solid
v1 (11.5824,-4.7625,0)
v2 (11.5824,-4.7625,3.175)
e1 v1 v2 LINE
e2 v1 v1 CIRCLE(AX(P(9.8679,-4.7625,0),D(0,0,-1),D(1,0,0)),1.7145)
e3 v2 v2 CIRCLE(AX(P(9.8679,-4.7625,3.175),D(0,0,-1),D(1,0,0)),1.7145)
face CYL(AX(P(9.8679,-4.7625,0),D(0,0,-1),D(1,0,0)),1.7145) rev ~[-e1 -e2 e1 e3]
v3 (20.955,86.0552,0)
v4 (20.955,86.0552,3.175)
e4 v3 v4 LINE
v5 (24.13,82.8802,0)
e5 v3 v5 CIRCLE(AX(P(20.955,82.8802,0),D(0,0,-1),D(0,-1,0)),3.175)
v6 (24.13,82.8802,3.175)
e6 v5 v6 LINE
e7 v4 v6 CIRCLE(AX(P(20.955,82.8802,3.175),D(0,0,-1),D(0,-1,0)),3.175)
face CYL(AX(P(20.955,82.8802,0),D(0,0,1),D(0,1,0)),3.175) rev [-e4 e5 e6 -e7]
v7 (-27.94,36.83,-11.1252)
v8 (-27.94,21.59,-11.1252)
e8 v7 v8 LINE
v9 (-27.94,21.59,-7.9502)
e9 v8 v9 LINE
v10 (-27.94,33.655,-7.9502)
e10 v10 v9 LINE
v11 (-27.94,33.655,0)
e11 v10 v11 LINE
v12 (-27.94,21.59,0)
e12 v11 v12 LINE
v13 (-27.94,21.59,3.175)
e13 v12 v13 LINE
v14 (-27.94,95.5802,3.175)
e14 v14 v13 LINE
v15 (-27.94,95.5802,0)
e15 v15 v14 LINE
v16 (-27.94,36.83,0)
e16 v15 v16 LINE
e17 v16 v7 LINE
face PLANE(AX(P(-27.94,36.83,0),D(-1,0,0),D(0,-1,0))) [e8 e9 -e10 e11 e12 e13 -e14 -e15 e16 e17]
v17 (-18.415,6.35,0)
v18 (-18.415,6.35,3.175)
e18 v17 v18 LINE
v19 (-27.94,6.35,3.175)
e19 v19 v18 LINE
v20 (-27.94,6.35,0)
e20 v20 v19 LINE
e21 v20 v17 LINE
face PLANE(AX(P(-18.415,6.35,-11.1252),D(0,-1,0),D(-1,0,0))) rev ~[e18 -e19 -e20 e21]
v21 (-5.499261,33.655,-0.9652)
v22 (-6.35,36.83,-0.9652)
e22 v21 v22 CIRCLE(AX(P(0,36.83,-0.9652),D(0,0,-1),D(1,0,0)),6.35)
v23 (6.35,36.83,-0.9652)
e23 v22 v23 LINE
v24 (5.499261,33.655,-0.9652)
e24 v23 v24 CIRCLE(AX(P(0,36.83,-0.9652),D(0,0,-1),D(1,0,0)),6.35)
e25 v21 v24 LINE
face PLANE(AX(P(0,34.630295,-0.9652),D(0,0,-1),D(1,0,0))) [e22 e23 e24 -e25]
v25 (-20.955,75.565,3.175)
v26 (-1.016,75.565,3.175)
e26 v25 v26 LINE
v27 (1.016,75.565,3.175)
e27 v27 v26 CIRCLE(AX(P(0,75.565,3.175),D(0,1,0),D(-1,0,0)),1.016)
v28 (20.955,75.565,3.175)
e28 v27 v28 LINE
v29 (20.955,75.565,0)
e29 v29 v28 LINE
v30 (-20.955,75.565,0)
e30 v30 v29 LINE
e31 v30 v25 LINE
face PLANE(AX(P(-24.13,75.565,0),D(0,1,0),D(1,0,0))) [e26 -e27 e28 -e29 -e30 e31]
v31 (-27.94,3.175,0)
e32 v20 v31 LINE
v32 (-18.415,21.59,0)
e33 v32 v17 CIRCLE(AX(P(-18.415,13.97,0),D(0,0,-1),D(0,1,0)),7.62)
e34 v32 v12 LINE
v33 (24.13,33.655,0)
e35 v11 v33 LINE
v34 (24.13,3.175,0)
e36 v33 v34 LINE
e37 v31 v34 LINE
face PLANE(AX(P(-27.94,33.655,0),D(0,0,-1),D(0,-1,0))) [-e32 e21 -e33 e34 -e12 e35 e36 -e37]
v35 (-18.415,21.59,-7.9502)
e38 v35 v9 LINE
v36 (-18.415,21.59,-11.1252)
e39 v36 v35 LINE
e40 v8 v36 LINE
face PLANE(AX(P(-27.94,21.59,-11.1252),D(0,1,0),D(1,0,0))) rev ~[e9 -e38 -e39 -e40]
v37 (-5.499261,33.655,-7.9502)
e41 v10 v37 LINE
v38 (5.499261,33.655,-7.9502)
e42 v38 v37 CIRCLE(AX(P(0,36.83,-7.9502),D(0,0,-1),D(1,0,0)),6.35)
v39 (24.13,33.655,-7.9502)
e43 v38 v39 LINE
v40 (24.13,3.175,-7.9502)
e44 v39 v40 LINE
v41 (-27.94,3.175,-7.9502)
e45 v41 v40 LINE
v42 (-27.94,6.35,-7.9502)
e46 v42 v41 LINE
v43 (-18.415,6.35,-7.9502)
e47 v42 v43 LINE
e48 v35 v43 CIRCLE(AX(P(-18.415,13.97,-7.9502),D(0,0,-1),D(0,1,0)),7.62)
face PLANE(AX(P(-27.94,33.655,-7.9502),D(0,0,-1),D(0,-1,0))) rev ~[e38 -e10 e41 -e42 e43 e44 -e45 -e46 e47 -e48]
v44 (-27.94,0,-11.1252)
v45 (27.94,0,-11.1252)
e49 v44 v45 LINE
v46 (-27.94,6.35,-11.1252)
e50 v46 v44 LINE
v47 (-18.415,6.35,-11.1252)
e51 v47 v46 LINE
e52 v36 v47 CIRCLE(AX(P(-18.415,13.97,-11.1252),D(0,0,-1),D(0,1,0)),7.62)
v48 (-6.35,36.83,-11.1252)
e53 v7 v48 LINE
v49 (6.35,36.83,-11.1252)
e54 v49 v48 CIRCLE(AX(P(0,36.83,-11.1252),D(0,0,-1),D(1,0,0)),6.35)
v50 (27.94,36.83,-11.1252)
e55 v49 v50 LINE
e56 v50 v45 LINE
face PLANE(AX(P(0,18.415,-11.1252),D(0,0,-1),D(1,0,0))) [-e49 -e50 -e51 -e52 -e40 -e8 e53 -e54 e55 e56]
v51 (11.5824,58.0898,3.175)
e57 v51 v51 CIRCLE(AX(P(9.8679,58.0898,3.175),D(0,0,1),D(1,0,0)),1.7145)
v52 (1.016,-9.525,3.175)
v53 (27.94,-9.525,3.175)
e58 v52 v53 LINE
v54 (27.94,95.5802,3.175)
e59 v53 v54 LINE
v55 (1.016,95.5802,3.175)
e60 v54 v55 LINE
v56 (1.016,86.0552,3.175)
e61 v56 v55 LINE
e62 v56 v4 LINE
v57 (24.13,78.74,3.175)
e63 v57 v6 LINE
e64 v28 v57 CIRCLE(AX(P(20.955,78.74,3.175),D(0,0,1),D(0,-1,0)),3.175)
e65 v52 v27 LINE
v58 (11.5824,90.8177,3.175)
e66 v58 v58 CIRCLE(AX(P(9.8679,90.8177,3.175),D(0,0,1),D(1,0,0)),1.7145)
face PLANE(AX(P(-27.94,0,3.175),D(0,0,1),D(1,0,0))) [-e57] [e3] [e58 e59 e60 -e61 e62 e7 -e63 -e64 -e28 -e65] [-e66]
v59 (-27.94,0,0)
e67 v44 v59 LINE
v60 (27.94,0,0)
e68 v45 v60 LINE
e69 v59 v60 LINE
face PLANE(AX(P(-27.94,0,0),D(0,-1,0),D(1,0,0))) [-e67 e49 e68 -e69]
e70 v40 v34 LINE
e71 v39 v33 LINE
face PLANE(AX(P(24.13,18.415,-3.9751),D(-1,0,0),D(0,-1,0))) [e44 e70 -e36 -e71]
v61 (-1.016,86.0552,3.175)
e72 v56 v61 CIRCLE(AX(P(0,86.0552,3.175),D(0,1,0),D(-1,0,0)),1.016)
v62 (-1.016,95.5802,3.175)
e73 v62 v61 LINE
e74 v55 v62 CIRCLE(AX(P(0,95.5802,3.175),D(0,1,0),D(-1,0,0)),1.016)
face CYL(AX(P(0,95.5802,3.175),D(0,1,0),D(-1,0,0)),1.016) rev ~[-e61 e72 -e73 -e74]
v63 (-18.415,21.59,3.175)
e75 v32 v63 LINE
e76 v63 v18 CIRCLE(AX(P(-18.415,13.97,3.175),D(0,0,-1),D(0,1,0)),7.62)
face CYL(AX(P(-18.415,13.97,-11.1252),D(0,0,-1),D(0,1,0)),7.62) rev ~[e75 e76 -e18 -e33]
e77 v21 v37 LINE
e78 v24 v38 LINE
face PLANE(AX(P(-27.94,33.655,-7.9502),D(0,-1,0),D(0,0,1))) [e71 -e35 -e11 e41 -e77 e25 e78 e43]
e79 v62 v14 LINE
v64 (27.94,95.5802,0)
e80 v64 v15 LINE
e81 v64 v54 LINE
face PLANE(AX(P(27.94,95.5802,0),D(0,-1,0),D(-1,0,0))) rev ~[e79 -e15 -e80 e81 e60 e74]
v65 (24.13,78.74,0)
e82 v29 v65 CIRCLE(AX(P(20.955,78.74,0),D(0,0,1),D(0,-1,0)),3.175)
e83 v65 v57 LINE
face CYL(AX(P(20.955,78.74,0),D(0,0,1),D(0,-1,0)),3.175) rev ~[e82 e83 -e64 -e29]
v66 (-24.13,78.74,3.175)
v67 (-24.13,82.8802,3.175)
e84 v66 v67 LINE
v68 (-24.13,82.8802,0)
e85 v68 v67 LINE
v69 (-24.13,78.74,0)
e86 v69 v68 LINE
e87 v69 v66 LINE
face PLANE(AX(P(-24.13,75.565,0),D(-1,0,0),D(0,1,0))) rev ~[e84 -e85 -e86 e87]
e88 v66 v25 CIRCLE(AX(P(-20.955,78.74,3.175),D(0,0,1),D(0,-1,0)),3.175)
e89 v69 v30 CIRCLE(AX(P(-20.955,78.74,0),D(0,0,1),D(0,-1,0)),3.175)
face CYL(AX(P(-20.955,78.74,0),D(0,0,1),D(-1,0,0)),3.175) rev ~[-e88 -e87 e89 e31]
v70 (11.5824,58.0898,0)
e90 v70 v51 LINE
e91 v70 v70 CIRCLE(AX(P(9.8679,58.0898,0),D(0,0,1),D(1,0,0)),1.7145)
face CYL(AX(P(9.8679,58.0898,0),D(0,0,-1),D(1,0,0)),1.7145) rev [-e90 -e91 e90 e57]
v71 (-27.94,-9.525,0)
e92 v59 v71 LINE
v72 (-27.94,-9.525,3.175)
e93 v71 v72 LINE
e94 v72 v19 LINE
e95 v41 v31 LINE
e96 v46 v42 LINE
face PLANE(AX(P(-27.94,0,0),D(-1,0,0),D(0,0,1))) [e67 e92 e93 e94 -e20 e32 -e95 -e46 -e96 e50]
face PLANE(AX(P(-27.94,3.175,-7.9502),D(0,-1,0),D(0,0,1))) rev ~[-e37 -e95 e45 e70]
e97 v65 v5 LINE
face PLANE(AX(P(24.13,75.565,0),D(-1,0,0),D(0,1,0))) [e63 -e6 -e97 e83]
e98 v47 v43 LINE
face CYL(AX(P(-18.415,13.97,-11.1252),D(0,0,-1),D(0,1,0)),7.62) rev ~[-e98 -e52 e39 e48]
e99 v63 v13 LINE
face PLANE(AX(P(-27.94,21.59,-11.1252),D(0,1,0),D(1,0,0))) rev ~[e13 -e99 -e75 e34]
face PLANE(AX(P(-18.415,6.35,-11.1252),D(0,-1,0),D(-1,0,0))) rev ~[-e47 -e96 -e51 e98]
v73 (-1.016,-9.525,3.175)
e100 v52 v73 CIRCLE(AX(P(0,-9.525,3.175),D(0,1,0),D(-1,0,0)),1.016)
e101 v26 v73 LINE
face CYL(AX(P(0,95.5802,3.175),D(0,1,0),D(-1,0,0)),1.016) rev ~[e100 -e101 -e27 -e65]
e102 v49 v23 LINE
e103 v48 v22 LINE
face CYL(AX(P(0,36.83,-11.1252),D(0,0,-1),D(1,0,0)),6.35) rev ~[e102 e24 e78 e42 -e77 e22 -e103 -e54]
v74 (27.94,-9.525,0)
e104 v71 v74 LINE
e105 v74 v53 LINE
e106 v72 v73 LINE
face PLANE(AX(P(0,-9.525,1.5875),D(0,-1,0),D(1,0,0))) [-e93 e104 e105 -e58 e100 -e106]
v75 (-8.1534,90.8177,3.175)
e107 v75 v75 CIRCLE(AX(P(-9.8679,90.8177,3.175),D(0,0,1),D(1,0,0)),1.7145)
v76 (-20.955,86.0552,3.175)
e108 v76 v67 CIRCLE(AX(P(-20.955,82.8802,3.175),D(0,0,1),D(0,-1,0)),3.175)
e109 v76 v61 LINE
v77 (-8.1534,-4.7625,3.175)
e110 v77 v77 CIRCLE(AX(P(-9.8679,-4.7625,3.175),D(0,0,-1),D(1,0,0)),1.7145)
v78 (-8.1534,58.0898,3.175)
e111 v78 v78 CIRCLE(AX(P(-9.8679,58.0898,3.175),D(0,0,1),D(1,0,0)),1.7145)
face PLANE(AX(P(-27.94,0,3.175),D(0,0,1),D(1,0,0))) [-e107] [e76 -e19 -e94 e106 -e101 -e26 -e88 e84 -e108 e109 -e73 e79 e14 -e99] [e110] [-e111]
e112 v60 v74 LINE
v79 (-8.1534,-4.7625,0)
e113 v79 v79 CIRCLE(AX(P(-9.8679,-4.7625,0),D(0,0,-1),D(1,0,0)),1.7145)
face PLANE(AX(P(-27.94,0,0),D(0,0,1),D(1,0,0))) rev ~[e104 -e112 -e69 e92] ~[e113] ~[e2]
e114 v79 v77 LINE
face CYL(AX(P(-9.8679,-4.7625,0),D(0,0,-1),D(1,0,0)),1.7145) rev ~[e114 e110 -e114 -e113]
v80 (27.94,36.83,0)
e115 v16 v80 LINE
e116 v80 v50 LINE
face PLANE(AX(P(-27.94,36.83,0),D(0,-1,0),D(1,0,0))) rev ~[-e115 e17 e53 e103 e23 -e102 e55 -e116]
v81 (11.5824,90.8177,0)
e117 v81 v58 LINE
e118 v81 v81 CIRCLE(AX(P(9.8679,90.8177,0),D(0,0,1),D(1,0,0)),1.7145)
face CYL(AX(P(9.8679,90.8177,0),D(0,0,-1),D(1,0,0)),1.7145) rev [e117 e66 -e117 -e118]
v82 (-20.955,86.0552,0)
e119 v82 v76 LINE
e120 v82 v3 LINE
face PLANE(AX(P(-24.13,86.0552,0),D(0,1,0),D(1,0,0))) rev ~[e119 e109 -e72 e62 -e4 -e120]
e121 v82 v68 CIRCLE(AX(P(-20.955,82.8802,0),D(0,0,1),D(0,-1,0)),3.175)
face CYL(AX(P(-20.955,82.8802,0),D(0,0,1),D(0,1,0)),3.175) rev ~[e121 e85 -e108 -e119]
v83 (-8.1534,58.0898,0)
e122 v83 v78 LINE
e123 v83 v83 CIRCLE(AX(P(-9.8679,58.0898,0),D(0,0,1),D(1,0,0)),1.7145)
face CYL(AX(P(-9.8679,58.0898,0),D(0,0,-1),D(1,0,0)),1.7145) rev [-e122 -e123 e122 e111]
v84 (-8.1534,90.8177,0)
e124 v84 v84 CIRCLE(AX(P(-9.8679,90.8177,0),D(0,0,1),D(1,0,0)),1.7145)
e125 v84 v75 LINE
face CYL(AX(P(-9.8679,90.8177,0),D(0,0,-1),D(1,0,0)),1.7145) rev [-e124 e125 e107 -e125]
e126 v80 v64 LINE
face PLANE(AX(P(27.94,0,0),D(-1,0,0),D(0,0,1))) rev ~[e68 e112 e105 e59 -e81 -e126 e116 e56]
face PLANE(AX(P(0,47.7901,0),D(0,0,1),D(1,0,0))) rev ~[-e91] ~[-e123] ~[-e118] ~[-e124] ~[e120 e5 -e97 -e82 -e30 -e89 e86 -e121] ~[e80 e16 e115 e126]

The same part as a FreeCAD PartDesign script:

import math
import FreeCAD as App
import Part
import Sketcher
Q = App.Units.Quantity


def edges_at(feature, points):
    """Names of the edges that pass closest to the given points."""
    edges = feature.Shape.Edges
    near = lambda p: min(range(len(edges)), key=lambda i: edges[i].distToShape(Part.Vertex(*p))[0])
    return sorted({f"Edge{near(p) + 1}" for p in points})

doc = App.newDocument("Part")
params = doc.addObject("Spreadsheet::Sheet", "Params")
for row, (alias, value) in enumerate([
    ("sketch1_diameter", "0.135 in"),
    ("sketch1_width", "2.2 in"),
    ("sketch1_width2", "1.9 in"),
    ("sketch1_height", "3.763 in"),
    ("sketch1_height2", "0.413 in"),
    ("pad1_length", "0.125 in"),
    ("sketch2_width", "2.2 in"),
    ("sketch2_height", "1.45 in"),
    ("pad2_length", "0.438 in"),
    ("sketch3_radius", "0.3 in"),
    ("sketch3_width", "0.375 in"),
    ("sketch4_width", "2.2 in"),
    ("sketch4_height", "0.125 in"),
    ("pad3_length", "0.375 in"),
    ("sketch5_diameter", "0.08 in"),
    ("sketch6_width", "1.2 in"),
    ("sketch6_height", "0.313 in"),
    ("pocket3_length", "2.05 in"),
    ("fillet_radius", "0.125 in"),
    ("sketch7_diameter", "0.135 in"),
    ("pocket4_length", "1 in"),
    ("sketch8_radius", "0.25 in"),
    ("pocket5_length", "0.4 in"),
], start=1):
    params.set(f"A{row}", alias)
    params.set(f"B{row}", "=" + value)
    params.setAlias(f"B{row}", alias)

body = doc.addObject("PartDesign::Body", "Body")

sketch1 = body.newObject("Sketcher::SketchObject", "Sketch")
sketch1.AttachmentSupport = (doc.getObject("XY_Plane"), [""])
sketch1.MapMode = "FlatFace"
sketch1.addGeometry([
    Part.LineSegment(App.Vector(-27.9, 0, 0), App.Vector(27.9, 0, 0)),
    Part.LineSegment(App.Vector(27.9, 0, 0), App.Vector(27.9, 95.6, 0)),
    Part.LineSegment(App.Vector(27.9, 95.6, 0), App.Vector(-27.9, 95.6, 0)),
    Part.LineSegment(App.Vector(-27.9, 95.6, 0), App.Vector(-27.9, 0, 0)),
    Part.Circle(App.Vector(-9.9, 58.1, 0), App.Vector(0, 0, 1), 1.7),
    Part.Circle(App.Vector(9.9, 58.1, 0), App.Vector(0, 0, 1), 1.7),
    Part.Circle(App.Vector(-9.9, 90.8, 0), App.Vector(0, 0, 1), 1.7),
    Part.LineSegment(App.Vector(24.1, 75.6, 0), App.Vector(-24.1, 75.6, 0)),
    Part.LineSegment(App.Vector(-24.1, 75.6, 0), App.Vector(-24.1, 86.1, 0)),
    Part.LineSegment(App.Vector(-24.1, 86.1, 0), App.Vector(24.1, 86.1, 0)),
    Part.LineSegment(App.Vector(24.1, 86.1, 0), App.Vector(24.1, 75.6, 0)),
    Part.Circle(App.Vector(9.9, 90.8, 0), App.Vector(0, 0, 1), 1.7),
], False)
sketch1.addConstraint([
    Sketcher.Constraint("Coincident", 0, 2, 1, 1),
    Sketcher.Constraint("Coincident", 1, 2, 2, 1),
    Sketcher.Constraint("Coincident", 2, 2, 3, 1),
    Sketcher.Constraint("Coincident", 3, 2, 0, 1),
    Sketcher.Constraint("Coincident", 7, 2, 8, 1),
    Sketcher.Constraint("Coincident", 8, 2, 9, 1),
    Sketcher.Constraint("Coincident", 9, 2, 10, 1),
    Sketcher.Constraint("Coincident", 10, 2, 7, 1),
    Sketcher.Constraint("Horizontal", 0),
    Sketcher.Constraint("Vertical", 1),
    Sketcher.Constraint("Horizontal", 2),
    Sketcher.Constraint("Vertical", 3),
    Sketcher.Constraint("Horizontal", 7),
    Sketcher.Constraint("Vertical", 8),
    Sketcher.Constraint("Horizontal", 9),
    Sketcher.Constraint("Vertical", 10),
    Sketcher.Constraint("Equal", 4, 5),
    Sketcher.Constraint("Equal", 5, 6),
    Sketcher.Constraint("Equal", 6, 11),
    Sketcher.Constraint("Symmetric", 0, 2, 3, 2, -1, 1),
    Sketcher.Constraint("Symmetric", 4, 3, 5, 3, -2),
    Sketcher.Constraint("Symmetric", 6, 3, 11, 3, -2),
    Sketcher.Constraint("Vertical", 4, 3, 6, 3),
    Sketcher.Constraint("Diameter", 4, Q("0.135 in")),
    Sketcher.Constraint("DistanceX", 0, 1, 0, 2, Q("2.2 in")),
    Sketcher.Constraint("DistanceX", 7, 2, 7, 1, Q("1.9 in")),
    Sketcher.Constraint("DistanceY", 1, 1, 1, 2, Q("3.763 in")),
    Sketcher.Constraint("DistanceY", 8, 1, 8, 2, Q("0.413 in")),
    Sketcher.Constraint("DistanceX", 7, 2, -1, 1, Q("0.95 in")),
    Sketcher.Constraint("DistanceY", -1, 1, 4, 3, Q("2.287 in")),
    Sketcher.Constraint("DistanceY", -1, 1, 7, 2, Q("2.975 in")),
    Sketcher.Constraint("DistanceX", 4, 3, 5, 3, Q("0.777 in")),
    Sketcher.Constraint("DistanceY", 11, 3, 1, 2, Q("0.1875 in")),
])
sketch1.setExpression("Constraints[23]", "Params.sketch1_diameter")
sketch1.setExpression("Constraints[24]", "Params.sketch1_width")
sketch1.setExpression("Constraints[25]", "Params.sketch1_width2")
sketch1.setExpression("Constraints[26]", "Params.sketch1_height")
sketch1.setExpression("Constraints[27]", "Params.sketch1_height2")
pad1 = body.newObject("PartDesign::Pad", "Pad")
pad1.Profile = sketch1
pad1.setExpression("Length", "Params.pad1_length")

sketch2 = body.newObject("Sketcher::SketchObject", "Sketch001")
sketch2.AttachmentSupport = (doc.getObject("XY_Plane"), [""])
sketch2.MapMode = "FlatFace"
sketch2.addGeometry([
    Part.LineSegment(App.Vector(-28, 0, 0), App.Vector(-28, 37, 0)),
    Part.LineSegment(App.Vector(-28, 37, 0), App.Vector(28, 37, 0)),
    Part.LineSegment(App.Vector(28, 37, 0), App.Vector(28, 0, 0)),
    Part.LineSegment(App.Vector(28, 0, 0), App.Vector(-28, 0, 0)),
], False)
sketch2.addConstraint([
    Sketcher.Constraint("Coincident", 0, 2, 1, 1),
    Sketcher.Constraint("Coincident", 1, 2, 2, 1),
    Sketcher.Constraint("Coincident", 2, 2, 3, 1),
    Sketcher.Constraint("Coincident", 3, 2, 0, 1),
    Sketcher.Constraint("Vertical", 0),
    Sketcher.Constraint("Horizontal", 1),
    Sketcher.Constraint("Vertical", 2),
    Sketcher.Constraint("Horizontal", 3),
    Sketcher.Constraint("Symmetric", 2, 2, 3, 2, -1, 1),
    Sketcher.Constraint("DistanceX", 1, 1, 1, 2, Q("2.2 in")),
    Sketcher.Constraint("DistanceY", 0, 1, 0, 2, Q("1.45 in")),
])
sketch2.setExpression("Constraints[9]", "Params.sketch2_width")
sketch2.setExpression("Constraints[10]", "Params.sketch2_height")
pad2 = body.newObject("PartDesign::Pad", "Pad001")
pad2.Profile = sketch2
pad2.setExpression("Length", "Params.pad2_length")
pad2.Reversed = True

sketch3 = body.newObject("Sketcher::SketchObject", "Sketch002")
sketch3.AttachmentSupport = (doc.getObject("XY_Plane"), [""])
sketch3.MapMode = "FlatFace"
sketch3.AttachmentOffset = App.Placement(App.Vector(0, 0, -0.438 * 25.4), App.Rotation())
sketch3.addGeometry([
    Part.LineSegment(App.Vector(-28, 6, 0), App.Vector(-28, 22, 0)),
    Part.LineSegment(App.Vector(-28, 22, 0), App.Vector(-18, 22, 0)),
    Part.ArcOfCircle(Part.Circle(App.Vector(-18, 14, 0), App.Vector(0, 0, 1), 8), math.radians(-90), math.radians(90)),
    Part.LineSegment(App.Vector(-18, 6, 0), App.Vector(-28, 6, 0)),
], False)
sketch3.addConstraint([
    Sketcher.Constraint("Coincident", 0, 2, 1, 1),
    Sketcher.Constraint("Tangent", 1, 2, 2, 2),
    Sketcher.Constraint("Tangent", 2, 1, 3, 1),
    Sketcher.Constraint("Coincident", 3, 2, 0, 1),
    Sketcher.Constraint("Vertical", 0),
    Sketcher.Constraint("Horizontal", 1),
    Sketcher.Constraint("Horizontal", 3),
    Sketcher.Constraint("Radius", 2, Q("0.3 in")),
    Sketcher.Constraint("DistanceX", 0, 2, -1, 1, Q("1.1 in")),
    Sketcher.Constraint("DistanceX", 1, 1, 1, 2, Q("0.375 in")),
    Sketcher.Constraint("DistanceY", -1, 1, 2, 3, Q("0.55 in")),
])
sketch3.setExpression("Constraints[7]", "Params.sketch3_radius")
sketch3.setExpression("Constraints[9]", "Params.sketch3_width")
pocket1 = body.newObject("PartDesign::Pocket", "Pocket")
pocket1.Profile = sketch3
pocket1.Type = "ThroughAll"
pocket1.Reversed = True

sketch4 = body.newObject("Sketcher::SketchObject", "Sketch003")
sketch4.AttachmentSupport = (doc.getObject("XZ_Plane"), [""])
sketch4.MapMode = "FlatFace"
sketch4.addGeometry([
    Part.LineSegment(App.Vector(-27.9, 3.2, 0), App.Vector(-27.9, 0, 0)),
    Part.LineSegment(App.Vector(-27.9, 0, 0), App.Vector(27.9, 0, 0)),
    Part.LineSegment(App.Vector(27.9, 0, 0), App.Vector(27.9, 3.2, 0)),
    Part.LineSegment(App.Vector(27.9, 3.2, 0), App.Vector(-27.9, 3.2, 0)),
], False)
sketch4.addConstraint([
    Sketcher.Constraint("Coincident", 0, 2, 1, 1),
    Sketcher.Constraint("Coincident", 1, 2, 2, 1),
    Sketcher.Constraint("Coincident", 2, 2, 3, 1),
    Sketcher.Constraint("Coincident", 3, 2, 0, 1),
    Sketcher.Constraint("Vertical", 0),
    Sketcher.Constraint("Horizontal", 1),
    Sketcher.Constraint("Vertical", 2),
    Sketcher.Constraint("Horizontal", 3),
    Sketcher.Constraint("Symmetric", 0, 2, 1, 2, -1, 1),
    Sketcher.Constraint("DistanceX", 1, 1, 1, 2, Q("2.2 in")),
    Sketcher.Constraint("DistanceY", 0, 2, 0, 1, Q("0.125 in")),
])
sketch4.setExpression("Constraints[9]", "Params.sketch4_width")
sketch4.setExpression("Constraints[10]", "Params.sketch4_height")
pad3 = body.newObject("PartDesign::Pad", "Pad002")
pad3.Profile = sketch4
pad3.setExpression("Length", "Params.pad3_length")

sketch5 = body.newObject("Sketcher::SketchObject", "Sketch004")
sketch5.AttachmentSupport = (doc.getObject("XZ_Plane"), [""])
sketch5.MapMode = "FlatFace"
sketch5.AttachmentOffset = App.Placement(App.Vector(0, 0, -3.763 * 25.4), App.Rotation())
sketch5.addGeometry(Part.Circle(App.Vector(0, 3.2, 0), App.Vector(0, 0, 1), 1), False)
sketch5.addConstraint([
    Sketcher.Constraint("PointOnObject", 0, 3, -2),
    Sketcher.Constraint("Diameter", 0, Q("0.08 in")),
    Sketcher.Constraint("DistanceY", -1, 1, 0, 3, Q("0.125 in")),
])
sketch5.setExpression("Constraints[1]", "Params.sketch5_diameter")
pocket2 = body.newObject("PartDesign::Pocket", "Pocket001")
pocket2.Profile = sketch5
pocket2.Type = "ThroughAll"
pocket2.Reversed = True

sketch6 = body.newObject("Sketcher::SketchObject", "Sketch005")
sketch6.AttachmentSupport = (doc.getObject("YZ_Plane"), [""])
sketch6.MapMode = "FlatFace"
sketch6.AttachmentOffset = App.Placement(App.Vector(0, 0, -1.1 * 25.4), App.Rotation())
sketch6.addGeometry([
    Part.LineSegment(App.Vector(34, 0, 0), App.Vector(34, -8, 0)),
    Part.LineSegment(App.Vector(34, -8, 0), App.Vector(3, -8, 0)),
    Part.LineSegment(App.Vector(3, -8, 0), App.Vector(3, 0, 0)),
    Part.LineSegment(App.Vector(3, 0, 0), App.Vector(34, 0, 0)),
], False)
sketch6.addConstraint([
    Sketcher.Constraint("Coincident", 0, 2, 1, 1),
    Sketcher.Constraint("Coincident", 1, 2, 2, 1),
    Sketcher.Constraint("Coincident", 2, 2, 3, 1),
    Sketcher.Constraint("Coincident", 3, 2, 0, 1),
    Sketcher.Constraint("Vertical", 0),
    Sketcher.Constraint("Horizontal", 1),
    Sketcher.Constraint("Vertical", 2),
    Sketcher.Constraint("Horizontal", 3),
    Sketcher.Constraint("PointOnObject", 2, 2, -1),
    Sketcher.Constraint("DistanceX", 1, 2, 1, 1, Q("1.2 in")),
    Sketcher.Constraint("DistanceY", 0, 2, 0, 1, Q("0.313 in")),
    Sketcher.Constraint("DistanceX", -1, 1, 0, 2, Q("1.325 in")),
])
sketch6.setExpression("Constraints[9]", "Params.sketch6_width")
sketch6.setExpression("Constraints[10]", "Params.sketch6_height")
pocket3 = body.newObject("PartDesign::Pocket", "Pocket002")
pocket3.Profile = sketch6
pocket3.setExpression("Length", "Params.pocket3_length")
pocket3.Reversed = True
doc.recompute()

fillet = body.newObject("PartDesign::Fillet", "Fillet")
fillet.Base = (pocket3, edges_at(pocket3, [
    (24.13, 75.565, 1.587),
    (-24.13, 75.565, 1.587),
    (-24.13, 86.055, 1.587),
    (24.13, 86.055, 1.587),
]))
fillet.setExpression("Radius", "Params.fillet_radius")

sketch7 = body.newObject("Sketcher::SketchObject", "Sketch006")
sketch7.AttachmentSupport = (doc.getObject("XY_Plane"), [""])
sketch7.MapMode = "FlatFace"
sketch7.addGeometry([
    Part.Circle(App.Vector(-9.9, -4.8, 0), App.Vector(0, 0, 1), 1.7),
    Part.Circle(App.Vector(9.9, -4.8, 0), App.Vector(0, 0, 1), 1.7),
], False)
sketch7.addConstraint([
    Sketcher.Constraint("Equal", 0, 1),
    Sketcher.Constraint("Symmetric", 0, 3, 1, 3, -2),
    Sketcher.Constraint("Diameter", 0, Q("0.135 in")),
    Sketcher.Constraint("DistanceY", 0, 3, -1, 1, Q("0.1875 in")),
    Sketcher.Constraint("DistanceX", 0, 3, 1, 3, Q("0.777 in")),
])
sketch7.setExpression("Constraints[2]", "Params.sketch7_diameter")
pocket4 = body.newObject("PartDesign::Pocket", "Pocket003")
pocket4.Profile = sketch7
pocket4.setExpression("Length", "Params.pocket4_length")
pocket4.Reversed = True

sketch8 = body.newObject("Sketcher::SketchObject", "Sketch007")
sketch8.AttachmentSupport = (doc.getObject("XY_Plane"), [""])
sketch8.MapMode = "FlatFace"
sketch8.AttachmentOffset = App.Placement(App.Vector(0, 0, -0.438 * 25.4), App.Rotation())
sketch8.addGeometry([
    Part.LineSegment(App.Vector(-6, 37, 0), App.Vector(6, 37, 0)),
    Part.ArcOfCircle(Part.Circle(App.Vector(0, 37, 0), App.Vector(0, 0, 1), 6), math.radians(180), math.radians(360)),
], False)
sketch8.addConstraint([
    Sketcher.Constraint("Coincident", 0, 1, 1, 1),
    Sketcher.Constraint("Coincident", 1, 2, 0, 2),
    Sketcher.Constraint("Horizontal", 0),
    Sketcher.Constraint("PointOnObject", 1, 3, -2),
    Sketcher.Constraint("Horizontal", 1, 3, 0, 1),
    Sketcher.Constraint("Radius", 1, Q("0.25 in")),
    Sketcher.Constraint("DistanceY", -1, 1, 1, 3, Q("1.45 in")),
])
sketch8.setExpression("Constraints[5]", "Params.sketch8_radius")
pocket5 = body.newObject("PartDesign::Pocket", "Pocket004")
pocket5.Profile = sketch8
pocket5.setExpression("Length", "Params.pocket5_length")
pocket5.Reversed = True

doc.recompute()
